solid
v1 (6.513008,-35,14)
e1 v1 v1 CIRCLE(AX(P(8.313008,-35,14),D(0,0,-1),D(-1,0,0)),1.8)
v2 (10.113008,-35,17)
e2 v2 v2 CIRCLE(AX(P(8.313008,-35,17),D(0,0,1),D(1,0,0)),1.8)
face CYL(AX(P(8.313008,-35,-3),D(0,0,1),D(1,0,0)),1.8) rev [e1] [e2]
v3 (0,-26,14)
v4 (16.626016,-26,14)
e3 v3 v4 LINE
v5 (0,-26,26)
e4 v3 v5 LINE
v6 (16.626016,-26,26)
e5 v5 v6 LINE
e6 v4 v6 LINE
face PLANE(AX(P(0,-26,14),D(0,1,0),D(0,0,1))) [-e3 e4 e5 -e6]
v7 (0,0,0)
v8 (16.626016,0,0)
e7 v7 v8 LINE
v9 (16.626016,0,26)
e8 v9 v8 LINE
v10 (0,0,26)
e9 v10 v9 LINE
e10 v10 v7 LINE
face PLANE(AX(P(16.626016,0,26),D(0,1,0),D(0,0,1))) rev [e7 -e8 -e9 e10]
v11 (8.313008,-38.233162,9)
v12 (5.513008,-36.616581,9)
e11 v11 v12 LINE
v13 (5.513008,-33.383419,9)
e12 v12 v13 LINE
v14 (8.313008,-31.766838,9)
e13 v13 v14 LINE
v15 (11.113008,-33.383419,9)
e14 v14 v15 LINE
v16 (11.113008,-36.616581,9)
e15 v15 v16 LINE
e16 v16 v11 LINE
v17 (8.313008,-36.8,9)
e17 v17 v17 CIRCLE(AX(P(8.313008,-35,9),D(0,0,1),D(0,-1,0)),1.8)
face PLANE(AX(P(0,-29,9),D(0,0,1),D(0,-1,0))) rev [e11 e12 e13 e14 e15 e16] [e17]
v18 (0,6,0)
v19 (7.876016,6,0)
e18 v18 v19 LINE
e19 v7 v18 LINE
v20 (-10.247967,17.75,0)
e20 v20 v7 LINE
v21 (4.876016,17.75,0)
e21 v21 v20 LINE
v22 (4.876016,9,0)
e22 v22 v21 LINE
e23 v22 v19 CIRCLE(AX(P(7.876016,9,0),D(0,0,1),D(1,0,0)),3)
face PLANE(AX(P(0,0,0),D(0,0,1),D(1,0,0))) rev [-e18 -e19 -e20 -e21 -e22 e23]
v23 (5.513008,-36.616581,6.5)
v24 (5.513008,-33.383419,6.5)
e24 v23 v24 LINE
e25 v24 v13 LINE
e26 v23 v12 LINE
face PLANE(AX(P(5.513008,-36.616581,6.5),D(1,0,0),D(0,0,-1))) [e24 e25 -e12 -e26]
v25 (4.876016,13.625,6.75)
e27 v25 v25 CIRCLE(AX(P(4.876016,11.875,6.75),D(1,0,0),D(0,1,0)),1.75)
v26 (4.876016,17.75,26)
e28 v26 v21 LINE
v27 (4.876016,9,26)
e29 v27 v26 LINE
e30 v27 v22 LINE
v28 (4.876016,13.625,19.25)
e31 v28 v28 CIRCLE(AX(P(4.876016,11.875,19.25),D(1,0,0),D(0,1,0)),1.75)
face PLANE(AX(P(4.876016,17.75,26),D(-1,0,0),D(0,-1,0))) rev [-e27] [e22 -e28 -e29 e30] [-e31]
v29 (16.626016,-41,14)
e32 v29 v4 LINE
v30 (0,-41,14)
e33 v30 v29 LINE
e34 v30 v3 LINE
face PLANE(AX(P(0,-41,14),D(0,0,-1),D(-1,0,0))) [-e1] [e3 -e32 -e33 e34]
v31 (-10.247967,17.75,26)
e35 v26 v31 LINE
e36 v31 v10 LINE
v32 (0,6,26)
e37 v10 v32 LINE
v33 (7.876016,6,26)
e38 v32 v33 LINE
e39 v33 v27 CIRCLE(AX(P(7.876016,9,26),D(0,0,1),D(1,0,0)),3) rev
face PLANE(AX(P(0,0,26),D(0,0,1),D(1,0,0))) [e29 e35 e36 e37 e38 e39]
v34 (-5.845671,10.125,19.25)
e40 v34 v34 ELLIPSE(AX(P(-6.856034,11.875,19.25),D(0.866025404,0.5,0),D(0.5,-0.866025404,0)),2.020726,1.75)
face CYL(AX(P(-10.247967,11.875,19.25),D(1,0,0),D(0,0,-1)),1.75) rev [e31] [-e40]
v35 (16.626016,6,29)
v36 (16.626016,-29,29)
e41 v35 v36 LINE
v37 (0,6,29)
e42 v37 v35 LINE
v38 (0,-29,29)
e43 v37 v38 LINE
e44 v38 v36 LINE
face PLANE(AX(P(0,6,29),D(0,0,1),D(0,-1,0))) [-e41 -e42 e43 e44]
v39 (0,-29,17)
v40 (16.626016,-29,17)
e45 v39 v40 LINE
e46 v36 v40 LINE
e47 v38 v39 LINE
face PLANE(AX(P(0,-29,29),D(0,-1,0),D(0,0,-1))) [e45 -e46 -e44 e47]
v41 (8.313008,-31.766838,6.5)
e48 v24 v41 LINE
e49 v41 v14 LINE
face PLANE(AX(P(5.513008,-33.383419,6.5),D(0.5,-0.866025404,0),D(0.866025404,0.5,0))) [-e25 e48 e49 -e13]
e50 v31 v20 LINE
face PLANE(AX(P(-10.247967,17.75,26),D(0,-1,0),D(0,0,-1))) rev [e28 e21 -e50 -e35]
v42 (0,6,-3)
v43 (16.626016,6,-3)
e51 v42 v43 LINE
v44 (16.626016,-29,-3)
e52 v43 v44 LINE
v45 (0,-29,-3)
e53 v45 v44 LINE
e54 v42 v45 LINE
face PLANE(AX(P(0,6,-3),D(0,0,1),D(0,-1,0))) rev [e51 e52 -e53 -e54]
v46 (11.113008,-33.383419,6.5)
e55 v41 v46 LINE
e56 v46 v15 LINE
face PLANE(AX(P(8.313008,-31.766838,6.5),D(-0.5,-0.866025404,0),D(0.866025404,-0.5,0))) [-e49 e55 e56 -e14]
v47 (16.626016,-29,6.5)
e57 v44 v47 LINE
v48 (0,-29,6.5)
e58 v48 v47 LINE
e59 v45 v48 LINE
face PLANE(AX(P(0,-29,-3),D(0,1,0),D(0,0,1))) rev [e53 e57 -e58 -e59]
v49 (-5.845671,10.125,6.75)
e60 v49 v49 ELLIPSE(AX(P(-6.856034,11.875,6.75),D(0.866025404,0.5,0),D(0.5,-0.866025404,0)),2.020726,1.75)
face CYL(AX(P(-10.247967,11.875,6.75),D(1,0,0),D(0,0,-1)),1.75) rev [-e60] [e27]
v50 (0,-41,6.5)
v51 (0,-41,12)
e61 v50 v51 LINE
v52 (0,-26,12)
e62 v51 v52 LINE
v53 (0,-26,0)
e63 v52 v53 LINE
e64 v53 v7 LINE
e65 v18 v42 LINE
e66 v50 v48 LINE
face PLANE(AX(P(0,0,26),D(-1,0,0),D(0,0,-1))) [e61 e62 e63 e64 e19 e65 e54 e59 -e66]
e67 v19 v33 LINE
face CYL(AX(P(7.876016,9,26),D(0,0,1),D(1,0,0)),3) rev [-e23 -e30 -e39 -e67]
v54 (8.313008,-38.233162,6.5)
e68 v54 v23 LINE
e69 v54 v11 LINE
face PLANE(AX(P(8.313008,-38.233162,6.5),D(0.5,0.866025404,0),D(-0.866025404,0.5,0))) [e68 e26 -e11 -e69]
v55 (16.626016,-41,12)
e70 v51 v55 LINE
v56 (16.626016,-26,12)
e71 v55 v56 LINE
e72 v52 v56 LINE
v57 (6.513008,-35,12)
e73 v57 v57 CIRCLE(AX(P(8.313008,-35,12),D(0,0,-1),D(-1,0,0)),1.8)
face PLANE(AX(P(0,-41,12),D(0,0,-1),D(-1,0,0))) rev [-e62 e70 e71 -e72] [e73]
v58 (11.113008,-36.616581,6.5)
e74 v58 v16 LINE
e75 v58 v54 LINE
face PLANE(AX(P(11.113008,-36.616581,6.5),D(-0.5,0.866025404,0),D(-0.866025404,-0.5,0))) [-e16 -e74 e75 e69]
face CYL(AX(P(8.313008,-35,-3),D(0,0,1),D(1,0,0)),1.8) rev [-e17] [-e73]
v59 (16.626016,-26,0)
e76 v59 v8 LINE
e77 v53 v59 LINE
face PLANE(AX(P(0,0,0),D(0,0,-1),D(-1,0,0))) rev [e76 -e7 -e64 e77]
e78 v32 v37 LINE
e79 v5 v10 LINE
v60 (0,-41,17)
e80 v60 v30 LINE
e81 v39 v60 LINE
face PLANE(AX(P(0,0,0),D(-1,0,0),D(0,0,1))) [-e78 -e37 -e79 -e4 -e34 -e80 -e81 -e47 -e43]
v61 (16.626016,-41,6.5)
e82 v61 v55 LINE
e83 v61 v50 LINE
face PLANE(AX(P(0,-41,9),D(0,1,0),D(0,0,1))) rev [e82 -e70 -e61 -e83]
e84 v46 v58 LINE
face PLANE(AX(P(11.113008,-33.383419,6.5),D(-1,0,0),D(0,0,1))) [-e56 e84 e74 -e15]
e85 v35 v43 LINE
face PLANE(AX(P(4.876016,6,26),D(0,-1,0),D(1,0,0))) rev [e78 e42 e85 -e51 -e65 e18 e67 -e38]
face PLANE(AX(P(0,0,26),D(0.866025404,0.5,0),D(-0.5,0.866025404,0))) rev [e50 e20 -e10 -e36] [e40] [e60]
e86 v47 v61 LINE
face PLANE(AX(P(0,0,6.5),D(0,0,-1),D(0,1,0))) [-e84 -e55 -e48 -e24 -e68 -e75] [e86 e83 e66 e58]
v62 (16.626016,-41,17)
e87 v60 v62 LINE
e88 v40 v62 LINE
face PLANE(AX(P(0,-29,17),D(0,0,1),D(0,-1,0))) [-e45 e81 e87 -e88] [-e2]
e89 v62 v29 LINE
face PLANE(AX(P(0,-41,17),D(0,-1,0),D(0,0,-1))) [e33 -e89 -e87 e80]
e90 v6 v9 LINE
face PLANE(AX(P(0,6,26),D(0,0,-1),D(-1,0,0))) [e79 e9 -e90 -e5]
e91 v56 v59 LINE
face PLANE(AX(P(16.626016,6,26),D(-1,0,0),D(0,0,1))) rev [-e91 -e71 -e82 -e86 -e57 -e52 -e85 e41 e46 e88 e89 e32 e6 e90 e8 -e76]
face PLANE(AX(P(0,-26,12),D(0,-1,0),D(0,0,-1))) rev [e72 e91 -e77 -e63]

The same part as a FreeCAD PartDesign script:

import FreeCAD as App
import Part
import Sketcher
from FreeCAD import Vector
Q = App.Units.Quantity


def edges_at(feature, points):
    """Names of the edges that pass closest to the given points."""
    edges = feature.Shape.Edges
    near = lambda p: min(range(len(edges)), key=lambda i: edges[i].distToShape(Part.Vertex(*p))[0])
    return sorted({f"Edge{near(p) + 1}" for p in points})

doc = App.newDocument("Part")
params = doc.addObject("Spreadsheet::Sheet", "Params")
for row, (alias, value) in enumerate([
    ("sketch1_height", "6 mm"),
    ("sketch1_width", "11.75 mm"),
    ("pad1_length", "26 mm"),
    ("sketch2_diameter", "3.5 mm"),
    ("fillet_radius", "3 mm"),
    ("sketch3_width", "35 mm"),
    ("sketch3_width2", "12 mm"),
    ("sketch3_width3", "15 mm"),
    ("sketch3_height", "3 mm"),
    ("pad2_length", "16.626016 mm"),
    ("sketch4_diameter", "3.6 mm"),
    ("sketch5_height", "12 mm"),
    ("pad3_length", "2.5 mm"),
], start=1):
    params.set(f"A{row}", alias)
    params.set(f"B{row}", "=" + value)
    params.setAlias(f"B{row}", alias)

body = doc.addObject("PartDesign::Body", "Body")

# Sketch on XY plane
sketch1 = body.newObject("Sketcher::SketchObject", "Sketch")
sketch1.AttachmentSupport = (doc.getObject("XY_Plane"), [""])
sketch1.MapMode = "FlatFace"
sketch1.addGeometry([
    Part.LineSegment(Vector(-10, 18, 0), Vector(0, 0, 0)),  # 0
    Part.LineSegment(Vector(0, 0, 0), Vector(17, 0, 0)),  # 1
    Part.LineSegment(Vector(17, 0, 0), Vector(17, 6, 0)),  # 2
    Part.LineSegment(Vector(17, 6, 0), Vector(5, 6, 0)),  # 3
    Part.LineSegment(Vector(5, 6, 0), Vector(5, 18, 0)),  # 4
    Part.LineSegment(Vector(5, 18, 0), Vector(-10, 18, 0)),  # 5
], False)
sketch1.addConstraint([
    Sketcher.Constraint("Coincident", 0, 2, 1, 1),
    Sketcher.Constraint("Coincident", 1, 2, 2, 1),
    Sketcher.Constraint("Coincident", 2, 2, 3, 1),
    Sketcher.Constraint("Coincident", 3, 2, 4, 1),
    Sketcher.Constraint("Coincident", 4, 2, 5, 1),
    Sketcher.Constraint("Coincident", 5, 2, 0, 1),
    Sketcher.Constraint("Horizontal", 1),
    Sketcher.Constraint("Vertical", 2),
    Sketcher.Constraint("Horizontal", 3),
    Sketcher.Constraint("Vertical", 4),
    Sketcher.Constraint("Horizontal", 5),
    Sketcher.Constraint("Coincident", 0, 2, -1, 1),
    Sketcher.Constraint("Equal", 3, 4),
    Sketcher.Constraint("DistanceY", 2, 1, 2, 2, Q("6 mm")),
    Sketcher.Constraint("Angle", 0, Q("-60 deg")),
    Sketcher.Constraint("DistanceX", 3, 2, 3, 1, Q("11.75 mm")),
    Sketcher.Constraint("DistanceX", 1, 1, 1, 2, Q("16.626016 mm")),
])
sketch1.setExpression("Constraints[13]", "Params.sketch1_height")
sketch1.setExpression("Constraints[15]", "Params.sketch1_width")
pad1 = body.newObject("PartDesign::Pad", "Pad")
pad1.Profile = sketch1
pad1.setExpression("Length", "Params.pad1_length")

# Sketch on YZ plane
sketch2 = body.newObject("Sketcher::SketchObject", "Sketch001")
sketch2.AttachmentSupport = (doc.getObject("YZ_Plane"), [""])
sketch2.MapMode = "FlatFace"
sketch2.AttachmentOffset = App.Placement(Vector(0, 0, 4.876016), App.Rotation())
sketch2.addGeometry([
    Part.Circle(Vector(11.9, 19.2, 0), Vector(0, 0, 1), 1.8),
    Part.Circle(Vector(11.9, 6.8, 0), Vector(0, 0, 1), 1.8),
], False)
sketch2.addConstraint([
    Sketcher.Constraint("Equal", 0, 1),
    Sketcher.Constraint("Vertical", 0, 3, 1, 3),
    Sketcher.Constraint("Diameter", 0, Q("3.5 mm")),
    Sketcher.Constraint("DistanceY", 1, 3, 0, 3, Q("12.5 mm")),
    Sketcher.Constraint("DistanceY", -1, 1, 0, 3, Q("19.25 mm")),
    Sketcher.Constraint("DistanceX", -1, 1, 0, 3, Q("11.875 mm")),
])
sketch2.setExpression("Constraints[2]", "Params.sketch2_diameter")
pocket1 = body.newObject("PartDesign::Pocket", "Pocket")
pocket1.Profile = sketch2
pocket1.Type = "ThroughAll"
doc.recompute()

fillet = body.newObject("PartDesign::Fillet", "Fillet")
fillet.Base = (pocket1, edges_at(pocket1, [(4.876, 6, 13)]))
fillet.setExpression("Radius", "Params.fillet_radius")

# Sketch on YZ plane
sketch3 = body.newObject("Sketcher::SketchObject", "Sketch002")
sketch3.AttachmentSupport = (doc.getObject("YZ_Plane"), [""])
sketch3.MapMode = "FlatFace"
sketch3.AttachmentOffset = App.Placement(Vector(0, 0, 16.626016), App.Rotation())
sketch3.addGeometry([
    Part.LineSegment(Vector(6, 26, 0), Vector(6, 29, 0)),  # 0
    Part.LineSegment(Vector(6, 29, 0), Vector(-29, 29, 0)),  # 1
    Part.LineSegment(Vector(-29, 29, 0), Vector(-29, 17, 0)),  # 2
    Part.LineSegment(Vector(-29, 17, 0), Vector(-41, 17, 0)),  # 3
    Part.LineSegment(Vector(-41, 17, 0), Vector(-41, 14, 0)),  # 4
    Part.LineSegment(Vector(-41, 14, 0), Vector(-26, 14, 0)),  # 5
    Part.LineSegment(Vector(-26, 14, 0), Vector(-26, 26, 0)),  # 6
    Part.LineSegment(Vector(-26, 26, 0), Vector(6, 26, 0)),  # 7
], False)
sketch3.addConstraint([
    Sketcher.Constraint("Coincident", 0, 2, 1, 1),
    Sketcher.Constraint("Coincident", 1, 2, 2, 1),
    Sketcher.Constraint("Coincident", 2, 2, 3, 1),
    Sketcher.Constraint("Coincident", 3, 2, 4, 1),
    Sketcher.Constraint("Coincident", 4, 2, 5, 1),
    Sketcher.Constraint("Coincident", 5, 2, 6, 1),
    Sketcher.Constraint("Coincident", 6, 2, 7, 1),
    Sketcher.Constraint("Coincident", 7, 2, 0, 1),
    Sketcher.Constraint("Vertical", 0),
    Sketcher.Constraint("Horizontal", 1),
    Sketcher.Constraint("Vertical", 2),
    Sketcher.Constraint("Horizontal", 3),
    Sketcher.Constraint("Vertical", 4),
    Sketcher.Constraint("Horizontal", 5),
    Sketcher.Constraint("Vertical", 6),
    Sketcher.Constraint("Horizontal", 7),
    Sketcher.Constraint("Equal", 3, 2),
    Sketcher.Constraint("Equal", 0, 4),
    Sketcher.Constraint("DistanceX", 1, 2, 1, 1, Q("35 mm")),
    Sketcher.Constraint("DistanceX", 3, 2, 3, 1, Q("12 mm")),
    Sketcher.Constraint("DistanceX", 5, 1, 5, 2, Q("15 mm")),
    Sketcher.Constraint("DistanceY", 0, 1, 0, 2, Q("3 mm")),
    Sketcher.Constraint("DistanceX", -1, 1, 0, 2, Q("6 mm")),
    Sketcher.Constraint("DistanceY", -1, 1, 0, 2, Q("29 mm")),
])
sketch3.setExpression("Constraints[18]", "Params.sketch3_width")
sketch3.setExpression("Constraints[19]", "Params.sketch3_width2")
sketch3.setExpression("Constraints[20]", "Params.sketch3_width3")
sketch3.setExpression("Constraints[21]", "Params.sketch3_height")
pad2 = body.newObject("PartDesign::Pad", "Pad001")
pad2.Profile = sketch3
pad2.setExpression("Length", "Params.pad2_length")
pad2.Reversed = True
doc.recompute()

datumplane = body.newObject("PartDesign::Plane", "DatumPlane")
datumplane.AttachmentSupport = (doc.getObject("XY_Plane"), [""])
datumplane.MapMode = "FlatFace"
datumplane.AttachmentOffset = App.Placement(Vector(0, 0, 13), App.Rotation())
mirrored = body.newObject("PartDesign::Mirrored", "Mirrored")
mirrored.Originals = [pad2]
mirrored.MirrorPlane = (datumplane, [""])
body.Tip = mirrored

# Sketch on XY plane
sketch4 = body.newObject("Sketcher::SketchObject", "Sketch003")
sketch4.AttachmentSupport = (doc.getObject("XY_Plane"), [""])
sketch4.MapMode = "FlatFace"
sketch4.AttachmentOffset = App.Placement(Vector(0, 0, 17), App.Rotation())
sketch4.addGeometry(Part.Circle(Vector(8.3, -35, 0), Vector(0, 0, 1), 1.8), False)
sketch4.addConstraint([
    Sketcher.Constraint("Diameter", 0, Q("3.6 mm")),
    Sketcher.Constraint("DistanceY", 0, 3, -1, 1, Q("35 mm")),
    Sketcher.Constraint("DistanceX", -1, 1, 0, 3, Q("8.313008 mm")),
])
sketch4.setExpression("Constraints[0]", "Params.sketch4_diameter")
pocket2 = body.newObject("PartDesign::Pocket", "Pocket001")
pocket2.Profile = sketch4
pocket2.Type = "ThroughAll"

# Sketch on XY plane
sketch5 = body.newObject("Sketcher::SketchObject", "Sketch004")
sketch5.AttachmentSupport = (doc.getObject("XY_Plane"), [""])
sketch5.MapMode = "FlatFace"
sketch5.AttachmentOffset = App.Placement(Vector(0, 0, 9), App.Rotation())
sketch5.addGeometry([
    Part.LineSegment(Vector(16.6, -29, 0), Vector(16.6, -41, 0)),  # 0
    Part.LineSegment(Vector(16.6, -41, 0), Vector(0, -41, 0)),  # 1
    Part.LineSegment(Vector(0, -41, 0), Vector(0, -29, 0)),  # 2
    Part.LineSegment(Vector(0, -29, 0), Vector(16.6, -29, 0)),  # 3
    Part.LineSegment(Vector(8.3, -31.8, 0), Vector(5.5, -33.4, 0)),  # 4
    Part.LineSegment(Vector(5.5, -33.4, 0), Vector(5.5, -36.6, 0)),  # 5
    Part.LineSegment(Vector(5.5, -36.6, 0), Vector(8.3, -38.2, 0)),  # 6
    Part.LineSegment(Vector(8.3, -38.2, 0), Vector(11.1, -36.6, 0)),  # 7
    Part.LineSegment(Vector(11.1, -36.6, 0), Vector(11.1, -33.4, 0)),  # 8
    Part.LineSegment(Vector(11.1, -33.4, 0), Vector(8.3, -31.8, 0)),  # 9
], False)
sketch5.addConstraint([
    Sketcher.Constraint("Coincident", 0, 2, 1, 1),
    Sketcher.Constraint("Coincident", 1, 2, 2, 1),
    Sketcher.Constraint("Coincident", 2, 2, 3, 1),
    Sketcher.Constraint("Coincident", 3, 2, 0, 1),
    Sketcher.Constraint("Coincident", 4, 2, 5, 1),
    Sketcher.Constraint("Coincident", 5, 2, 6, 1),
    Sketcher.Constraint("Coincident", 6, 2, 7, 1),
    Sketcher.Constraint("Coincident", 7, 2, 8, 1),
    Sketcher.Constraint("Coincident", 8, 2, 9, 1),
    Sketcher.Constraint("Coincident", 9, 2, 4, 1),
    Sketcher.Constraint("Vertical", 0),
    Sketcher.Constraint("Horizontal", 1),
    Sketcher.Constraint("Vertical", 2),
    Sketcher.Constraint("Horizontal", 3),
    Sketcher.Constraint("Vertical", 5),
    Sketcher.Constraint("Vertical", 8),
    Sketcher.Constraint("PointOnObject", 1, 2, -2),
    Sketcher.Constraint("Parallel", 4, 7),
    Sketcher.Constraint("Parallel", 6, 9),
    Sketcher.Constraint("Horizontal", 5, 2, 7, 2),
    Sketcher.Constraint("Horizontal", 4, 2, 8, 2),
    Sketcher.Constraint("Vertical", 6, 2, 9, 2),
    Sketcher.Constraint("DistanceY", 0, 2, 0, 1, Q("12 mm")),
    Sketcher.Constraint("Angle", 4, Q("-150 deg")),
    Sketcher.Constraint("DistanceY", 0, 2, -1, 1, Q("41 mm")),
    Sketcher.Constraint("DistanceX", 5, 2, 6, 2, Q("2.8 mm")),
    Sketcher.Constraint("DistanceY", 5, 2, 5, 1, Q("3.233162 mm")),
    Sketcher.Constraint("DistanceX", 1, 2, 1, 1, Q("16.626016 mm")),
    Sketcher.Constraint("DistanceX", -1, 1, 4, 2, Q("5.513008 mm")),
    Sketcher.Constraint("DistanceY", 4, 2, -1, 1, Q("33.383419 mm")),
])
sketch5.setExpression("Constraints[22]", "Params.sketch5_height")
pad3 = body.newObject("PartDesign::Pad", "Pad002")
pad3.Profile = sketch5
pad3.setExpression("Length", "Params.pad3_length")
pad3.Reversed = True

doc.recompute()
